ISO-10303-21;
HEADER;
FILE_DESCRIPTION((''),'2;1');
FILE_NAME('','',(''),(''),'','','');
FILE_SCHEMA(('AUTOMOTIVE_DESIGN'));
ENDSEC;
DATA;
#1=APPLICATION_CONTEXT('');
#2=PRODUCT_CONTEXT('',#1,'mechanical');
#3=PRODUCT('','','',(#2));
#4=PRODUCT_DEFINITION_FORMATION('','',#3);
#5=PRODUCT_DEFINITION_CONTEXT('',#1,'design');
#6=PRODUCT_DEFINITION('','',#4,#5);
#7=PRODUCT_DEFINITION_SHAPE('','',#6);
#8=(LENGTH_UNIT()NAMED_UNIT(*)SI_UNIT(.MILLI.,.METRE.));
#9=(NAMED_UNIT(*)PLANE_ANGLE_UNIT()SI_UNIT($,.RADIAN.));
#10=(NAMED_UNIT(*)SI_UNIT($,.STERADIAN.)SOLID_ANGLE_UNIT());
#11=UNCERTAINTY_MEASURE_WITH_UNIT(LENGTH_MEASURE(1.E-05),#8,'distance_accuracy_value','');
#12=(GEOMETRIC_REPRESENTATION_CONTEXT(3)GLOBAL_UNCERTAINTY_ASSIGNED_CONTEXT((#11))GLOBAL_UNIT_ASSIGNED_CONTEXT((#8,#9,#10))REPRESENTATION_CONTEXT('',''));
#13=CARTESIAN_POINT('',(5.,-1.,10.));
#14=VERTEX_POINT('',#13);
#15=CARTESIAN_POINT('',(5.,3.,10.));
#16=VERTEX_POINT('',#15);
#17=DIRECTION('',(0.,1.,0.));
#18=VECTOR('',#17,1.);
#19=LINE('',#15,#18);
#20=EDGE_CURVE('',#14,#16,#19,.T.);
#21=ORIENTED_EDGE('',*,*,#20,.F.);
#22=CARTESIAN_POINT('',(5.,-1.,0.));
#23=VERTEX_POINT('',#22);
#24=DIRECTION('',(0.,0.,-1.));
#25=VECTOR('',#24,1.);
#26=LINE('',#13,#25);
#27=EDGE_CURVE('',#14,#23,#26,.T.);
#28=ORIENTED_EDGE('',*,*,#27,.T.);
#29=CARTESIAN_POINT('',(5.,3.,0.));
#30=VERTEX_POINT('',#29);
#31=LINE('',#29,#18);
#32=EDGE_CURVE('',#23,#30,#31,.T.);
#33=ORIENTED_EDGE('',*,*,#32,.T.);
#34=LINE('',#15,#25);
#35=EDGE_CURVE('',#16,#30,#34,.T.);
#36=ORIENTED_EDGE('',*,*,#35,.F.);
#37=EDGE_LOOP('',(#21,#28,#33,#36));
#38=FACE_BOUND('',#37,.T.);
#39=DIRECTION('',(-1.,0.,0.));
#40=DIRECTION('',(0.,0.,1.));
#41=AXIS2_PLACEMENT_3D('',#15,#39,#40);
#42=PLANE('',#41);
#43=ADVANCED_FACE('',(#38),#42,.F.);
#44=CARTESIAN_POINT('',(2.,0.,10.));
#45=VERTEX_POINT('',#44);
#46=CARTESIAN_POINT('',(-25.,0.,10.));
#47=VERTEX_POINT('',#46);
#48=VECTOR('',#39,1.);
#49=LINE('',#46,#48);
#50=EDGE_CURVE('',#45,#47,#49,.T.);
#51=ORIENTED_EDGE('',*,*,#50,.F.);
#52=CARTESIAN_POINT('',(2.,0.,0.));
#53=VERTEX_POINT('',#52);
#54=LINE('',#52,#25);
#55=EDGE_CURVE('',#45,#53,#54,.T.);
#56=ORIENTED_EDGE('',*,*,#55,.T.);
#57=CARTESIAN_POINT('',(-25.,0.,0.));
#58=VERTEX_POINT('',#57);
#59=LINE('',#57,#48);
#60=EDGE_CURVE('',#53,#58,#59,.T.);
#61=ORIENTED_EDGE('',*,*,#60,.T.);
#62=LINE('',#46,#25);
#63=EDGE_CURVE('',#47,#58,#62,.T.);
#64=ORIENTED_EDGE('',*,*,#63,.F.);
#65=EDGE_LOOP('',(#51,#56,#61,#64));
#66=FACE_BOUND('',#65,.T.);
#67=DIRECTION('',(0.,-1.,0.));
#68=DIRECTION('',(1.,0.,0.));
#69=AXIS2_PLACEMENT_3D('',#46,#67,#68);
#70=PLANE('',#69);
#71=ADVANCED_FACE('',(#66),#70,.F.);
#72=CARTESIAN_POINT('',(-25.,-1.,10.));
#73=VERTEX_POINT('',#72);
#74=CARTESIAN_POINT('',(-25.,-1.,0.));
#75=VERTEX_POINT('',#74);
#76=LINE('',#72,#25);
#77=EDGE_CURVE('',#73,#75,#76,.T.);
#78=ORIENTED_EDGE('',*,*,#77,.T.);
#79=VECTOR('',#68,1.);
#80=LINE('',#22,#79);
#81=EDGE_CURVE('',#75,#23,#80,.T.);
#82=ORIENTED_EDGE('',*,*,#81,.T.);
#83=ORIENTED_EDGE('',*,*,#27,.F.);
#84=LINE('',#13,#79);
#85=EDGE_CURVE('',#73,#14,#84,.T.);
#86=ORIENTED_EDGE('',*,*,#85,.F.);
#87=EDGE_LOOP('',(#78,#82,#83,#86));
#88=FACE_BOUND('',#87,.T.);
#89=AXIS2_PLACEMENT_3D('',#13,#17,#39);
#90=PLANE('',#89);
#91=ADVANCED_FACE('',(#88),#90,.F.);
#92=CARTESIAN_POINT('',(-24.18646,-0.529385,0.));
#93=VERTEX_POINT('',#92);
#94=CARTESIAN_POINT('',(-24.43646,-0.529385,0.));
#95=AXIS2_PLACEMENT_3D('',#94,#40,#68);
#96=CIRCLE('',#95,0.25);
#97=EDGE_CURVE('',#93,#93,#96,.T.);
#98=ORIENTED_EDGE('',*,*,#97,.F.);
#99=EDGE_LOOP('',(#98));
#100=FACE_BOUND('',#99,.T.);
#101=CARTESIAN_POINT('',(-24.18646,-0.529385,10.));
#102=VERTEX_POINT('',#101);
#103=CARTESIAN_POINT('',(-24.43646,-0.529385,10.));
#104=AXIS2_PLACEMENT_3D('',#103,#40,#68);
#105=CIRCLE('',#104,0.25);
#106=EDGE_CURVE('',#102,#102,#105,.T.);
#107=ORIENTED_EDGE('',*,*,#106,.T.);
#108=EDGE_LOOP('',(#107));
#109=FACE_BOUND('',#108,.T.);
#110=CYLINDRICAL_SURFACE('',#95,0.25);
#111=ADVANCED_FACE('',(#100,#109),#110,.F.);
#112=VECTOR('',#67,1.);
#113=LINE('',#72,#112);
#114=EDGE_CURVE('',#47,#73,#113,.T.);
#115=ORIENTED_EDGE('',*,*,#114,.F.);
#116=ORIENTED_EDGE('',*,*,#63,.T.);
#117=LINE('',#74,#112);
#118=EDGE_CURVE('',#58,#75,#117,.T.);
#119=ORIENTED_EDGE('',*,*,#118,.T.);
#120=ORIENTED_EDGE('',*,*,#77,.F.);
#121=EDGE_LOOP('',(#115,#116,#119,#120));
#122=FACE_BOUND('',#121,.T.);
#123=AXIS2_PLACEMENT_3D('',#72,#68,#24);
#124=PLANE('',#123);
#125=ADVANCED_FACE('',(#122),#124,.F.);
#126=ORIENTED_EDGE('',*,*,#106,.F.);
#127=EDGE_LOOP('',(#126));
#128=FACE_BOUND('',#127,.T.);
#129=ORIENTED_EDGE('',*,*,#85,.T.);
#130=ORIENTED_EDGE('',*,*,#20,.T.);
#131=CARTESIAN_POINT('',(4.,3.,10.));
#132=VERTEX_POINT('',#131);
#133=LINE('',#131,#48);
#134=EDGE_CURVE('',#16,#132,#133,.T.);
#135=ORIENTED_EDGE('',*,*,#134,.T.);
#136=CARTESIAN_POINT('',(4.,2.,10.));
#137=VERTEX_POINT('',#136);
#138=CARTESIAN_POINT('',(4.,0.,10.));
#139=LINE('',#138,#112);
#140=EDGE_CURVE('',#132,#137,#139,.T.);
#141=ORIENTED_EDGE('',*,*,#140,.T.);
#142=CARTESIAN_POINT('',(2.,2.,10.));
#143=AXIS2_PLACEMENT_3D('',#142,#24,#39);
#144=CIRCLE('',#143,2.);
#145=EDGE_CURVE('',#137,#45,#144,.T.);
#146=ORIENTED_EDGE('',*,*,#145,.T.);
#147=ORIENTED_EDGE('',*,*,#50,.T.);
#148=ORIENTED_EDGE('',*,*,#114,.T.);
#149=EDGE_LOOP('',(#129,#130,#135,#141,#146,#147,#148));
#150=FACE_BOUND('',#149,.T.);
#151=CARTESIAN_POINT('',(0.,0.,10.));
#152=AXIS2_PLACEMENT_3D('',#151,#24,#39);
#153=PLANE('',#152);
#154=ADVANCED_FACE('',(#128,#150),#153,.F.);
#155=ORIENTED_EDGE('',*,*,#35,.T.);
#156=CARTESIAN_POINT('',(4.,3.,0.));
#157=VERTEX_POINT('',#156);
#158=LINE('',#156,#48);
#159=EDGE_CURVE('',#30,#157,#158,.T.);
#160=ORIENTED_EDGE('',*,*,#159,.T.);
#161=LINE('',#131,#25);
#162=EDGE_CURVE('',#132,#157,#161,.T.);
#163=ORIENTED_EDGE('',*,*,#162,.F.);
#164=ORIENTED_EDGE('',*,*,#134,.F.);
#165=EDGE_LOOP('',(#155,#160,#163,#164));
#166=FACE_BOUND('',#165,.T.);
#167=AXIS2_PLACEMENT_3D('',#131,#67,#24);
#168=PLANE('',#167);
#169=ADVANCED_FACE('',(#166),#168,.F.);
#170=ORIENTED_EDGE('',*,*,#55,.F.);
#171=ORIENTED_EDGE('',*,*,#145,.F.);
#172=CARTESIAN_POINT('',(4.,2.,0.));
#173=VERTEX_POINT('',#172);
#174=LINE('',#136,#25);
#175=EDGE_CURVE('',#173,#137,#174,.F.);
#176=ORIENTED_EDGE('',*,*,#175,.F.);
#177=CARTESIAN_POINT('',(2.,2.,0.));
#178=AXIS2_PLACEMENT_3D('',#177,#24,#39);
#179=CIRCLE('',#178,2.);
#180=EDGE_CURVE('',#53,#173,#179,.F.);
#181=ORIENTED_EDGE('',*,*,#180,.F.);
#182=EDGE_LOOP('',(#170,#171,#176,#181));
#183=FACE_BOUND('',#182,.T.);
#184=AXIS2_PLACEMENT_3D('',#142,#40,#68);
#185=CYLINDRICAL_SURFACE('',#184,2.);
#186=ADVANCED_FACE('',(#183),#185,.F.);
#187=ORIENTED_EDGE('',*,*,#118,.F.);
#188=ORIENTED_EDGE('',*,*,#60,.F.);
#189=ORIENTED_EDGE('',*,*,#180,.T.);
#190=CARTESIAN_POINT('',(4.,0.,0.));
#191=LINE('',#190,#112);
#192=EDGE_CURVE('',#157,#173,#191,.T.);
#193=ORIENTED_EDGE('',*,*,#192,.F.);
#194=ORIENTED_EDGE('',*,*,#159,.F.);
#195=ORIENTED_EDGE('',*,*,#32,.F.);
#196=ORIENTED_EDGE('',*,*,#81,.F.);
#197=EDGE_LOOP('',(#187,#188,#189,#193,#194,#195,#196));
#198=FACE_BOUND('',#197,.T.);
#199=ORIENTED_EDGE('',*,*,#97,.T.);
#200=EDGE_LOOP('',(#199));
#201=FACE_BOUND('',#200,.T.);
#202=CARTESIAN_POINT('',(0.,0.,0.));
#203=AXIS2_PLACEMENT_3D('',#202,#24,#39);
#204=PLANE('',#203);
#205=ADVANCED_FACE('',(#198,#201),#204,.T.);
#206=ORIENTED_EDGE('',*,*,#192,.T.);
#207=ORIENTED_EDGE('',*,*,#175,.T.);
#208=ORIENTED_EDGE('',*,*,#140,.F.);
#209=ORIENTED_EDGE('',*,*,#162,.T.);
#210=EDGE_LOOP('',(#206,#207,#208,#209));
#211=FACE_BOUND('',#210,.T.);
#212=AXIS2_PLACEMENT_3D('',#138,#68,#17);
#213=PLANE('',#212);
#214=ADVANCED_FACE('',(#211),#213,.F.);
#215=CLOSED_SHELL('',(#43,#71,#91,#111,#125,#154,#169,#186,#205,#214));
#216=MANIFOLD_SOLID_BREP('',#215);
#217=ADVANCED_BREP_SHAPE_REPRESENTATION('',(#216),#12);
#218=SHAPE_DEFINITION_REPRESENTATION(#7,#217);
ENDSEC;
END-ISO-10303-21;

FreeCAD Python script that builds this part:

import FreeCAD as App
import Part
import Sketcher
from FreeCAD import Vector


def edges_at(feature, points):
    """Names of the edges that pass closest to the given points."""
    edges = feature.Shape.Edges
    near = lambda p: min(range(len(edges)), key=lambda i: edges[i].distToShape(Part.Vertex(*p))[0])
    return sorted({f"Edge{near(p) + 1}" for p in points})

doc = App.newDocument("Part")
body = doc.addObject("PartDesign::Body", "Body")

# Sketch on XY plane
sketch1 = body.newObject("Sketcher::SketchObject", "Sketch")
sketch1.AttachmentSupport = (doc.getObject("XY_Plane"), [""])
sketch1.MapMode = "FlatFace"
sketch1.addGeometry([
    Part.LineSegment(Vector(5, 3, 0), Vector(4, 3, 0)),  # 0
    Part.LineSegment(Vector(4, 3, 0), Vector(4, 0, 0)),  # 1
    Part.LineSegment(Vector(4, 0, 0), Vector(-25, 0, 0)),  # 2
    Part.LineSegment(Vector(-25, 0, 0), Vector(-25, -1, 0)),  # 3
    Part.LineSegment(Vector(-25, -1, 0), Vector(5, -1, 0)),  # 4
    Part.LineSegment(Vector(5, -1, 0), Vector(5, 3, 0)),  # 5
], False)
sketch1.addConstraint([
    Sketcher.Constraint("Coincident", 0, 2, 1, 1),
    Sketcher.Constraint("Coincident", 1, 2, 2, 1),
    Sketcher.Constraint("Coincident", 2, 2, 3, 1),
    Sketcher.Constraint("Coincident", 3, 2, 4, 1),
    Sketcher.Constraint("Coincident", 4, 2, 5, 1),
    Sketcher.Constraint("Coincident", 5, 2, 0, 1),
    Sketcher.Constraint("Horizontal", 0),
    Sketcher.Constraint("Vertical", 1),
    Sketcher.Constraint("Horizontal", 2),
    Sketcher.Constraint("Vertical", 3),
    Sketcher.Constraint("Horizontal", 4),
    Sketcher.Constraint("Vertical", 5),
    Sketcher.Constraint("PointOnObject", 1, 2, -1),
    Sketcher.Constraint("Equal", 0, 3),
    Sketcher.Constraint("DistanceX", 0, 2, 0, 1, 1.0),
    Sketcher.Constraint("DistanceX", 2, 2, 2, 1, 29.0),
    Sketcher.Constraint("DistanceY", 1, 2, 1, 1, 3.0),
    Sketcher.Constraint("DistanceX", -1, 1, 0, 2, 4.0),
])
pad1 = body.newObject("PartDesign::Pad", "Pad")
pad1.Profile = sketch1
pad1.Length = 10
doc.recompute()

fillet = body.newObject("PartDesign::Fillet", "Fillet")
fillet.Base = (pad1, edges_at(pad1, [(4, 0, 5)]))
fillet.Radius = 2

# Sketch on XY plane
sketch2 = body.newObject("Sketcher::SketchObject", "Sketch001")
sketch2.AttachmentSupport = (doc.getObject("XY_Plane"), [""])
sketch2.MapMode = "FlatFace"
sketch2.AttachmentOffset = App.Placement(Vector(0, 0, 10), App.Rotation())
sketch2.addGeometry(Part.Circle(Vector(-24.44, -0.53, 0), Vector(0, 0, 1), 0.25), False)
sketch2.addConstraint([
    Sketcher.Constraint("Diameter", 0, 0.5),
    Sketcher.Constraint("DistanceX", 0, 3, -1, 1, 24.43646),
    Sketcher.Constraint("DistanceY", 0, 3, -1, 1, 0.529385),
])
pocket1 = body.newObject("PartDesign::Pocket", "Pocket")
pocket1.Profile = sketch2
pocket1.Type = "ThroughAll"

doc.recompute()
